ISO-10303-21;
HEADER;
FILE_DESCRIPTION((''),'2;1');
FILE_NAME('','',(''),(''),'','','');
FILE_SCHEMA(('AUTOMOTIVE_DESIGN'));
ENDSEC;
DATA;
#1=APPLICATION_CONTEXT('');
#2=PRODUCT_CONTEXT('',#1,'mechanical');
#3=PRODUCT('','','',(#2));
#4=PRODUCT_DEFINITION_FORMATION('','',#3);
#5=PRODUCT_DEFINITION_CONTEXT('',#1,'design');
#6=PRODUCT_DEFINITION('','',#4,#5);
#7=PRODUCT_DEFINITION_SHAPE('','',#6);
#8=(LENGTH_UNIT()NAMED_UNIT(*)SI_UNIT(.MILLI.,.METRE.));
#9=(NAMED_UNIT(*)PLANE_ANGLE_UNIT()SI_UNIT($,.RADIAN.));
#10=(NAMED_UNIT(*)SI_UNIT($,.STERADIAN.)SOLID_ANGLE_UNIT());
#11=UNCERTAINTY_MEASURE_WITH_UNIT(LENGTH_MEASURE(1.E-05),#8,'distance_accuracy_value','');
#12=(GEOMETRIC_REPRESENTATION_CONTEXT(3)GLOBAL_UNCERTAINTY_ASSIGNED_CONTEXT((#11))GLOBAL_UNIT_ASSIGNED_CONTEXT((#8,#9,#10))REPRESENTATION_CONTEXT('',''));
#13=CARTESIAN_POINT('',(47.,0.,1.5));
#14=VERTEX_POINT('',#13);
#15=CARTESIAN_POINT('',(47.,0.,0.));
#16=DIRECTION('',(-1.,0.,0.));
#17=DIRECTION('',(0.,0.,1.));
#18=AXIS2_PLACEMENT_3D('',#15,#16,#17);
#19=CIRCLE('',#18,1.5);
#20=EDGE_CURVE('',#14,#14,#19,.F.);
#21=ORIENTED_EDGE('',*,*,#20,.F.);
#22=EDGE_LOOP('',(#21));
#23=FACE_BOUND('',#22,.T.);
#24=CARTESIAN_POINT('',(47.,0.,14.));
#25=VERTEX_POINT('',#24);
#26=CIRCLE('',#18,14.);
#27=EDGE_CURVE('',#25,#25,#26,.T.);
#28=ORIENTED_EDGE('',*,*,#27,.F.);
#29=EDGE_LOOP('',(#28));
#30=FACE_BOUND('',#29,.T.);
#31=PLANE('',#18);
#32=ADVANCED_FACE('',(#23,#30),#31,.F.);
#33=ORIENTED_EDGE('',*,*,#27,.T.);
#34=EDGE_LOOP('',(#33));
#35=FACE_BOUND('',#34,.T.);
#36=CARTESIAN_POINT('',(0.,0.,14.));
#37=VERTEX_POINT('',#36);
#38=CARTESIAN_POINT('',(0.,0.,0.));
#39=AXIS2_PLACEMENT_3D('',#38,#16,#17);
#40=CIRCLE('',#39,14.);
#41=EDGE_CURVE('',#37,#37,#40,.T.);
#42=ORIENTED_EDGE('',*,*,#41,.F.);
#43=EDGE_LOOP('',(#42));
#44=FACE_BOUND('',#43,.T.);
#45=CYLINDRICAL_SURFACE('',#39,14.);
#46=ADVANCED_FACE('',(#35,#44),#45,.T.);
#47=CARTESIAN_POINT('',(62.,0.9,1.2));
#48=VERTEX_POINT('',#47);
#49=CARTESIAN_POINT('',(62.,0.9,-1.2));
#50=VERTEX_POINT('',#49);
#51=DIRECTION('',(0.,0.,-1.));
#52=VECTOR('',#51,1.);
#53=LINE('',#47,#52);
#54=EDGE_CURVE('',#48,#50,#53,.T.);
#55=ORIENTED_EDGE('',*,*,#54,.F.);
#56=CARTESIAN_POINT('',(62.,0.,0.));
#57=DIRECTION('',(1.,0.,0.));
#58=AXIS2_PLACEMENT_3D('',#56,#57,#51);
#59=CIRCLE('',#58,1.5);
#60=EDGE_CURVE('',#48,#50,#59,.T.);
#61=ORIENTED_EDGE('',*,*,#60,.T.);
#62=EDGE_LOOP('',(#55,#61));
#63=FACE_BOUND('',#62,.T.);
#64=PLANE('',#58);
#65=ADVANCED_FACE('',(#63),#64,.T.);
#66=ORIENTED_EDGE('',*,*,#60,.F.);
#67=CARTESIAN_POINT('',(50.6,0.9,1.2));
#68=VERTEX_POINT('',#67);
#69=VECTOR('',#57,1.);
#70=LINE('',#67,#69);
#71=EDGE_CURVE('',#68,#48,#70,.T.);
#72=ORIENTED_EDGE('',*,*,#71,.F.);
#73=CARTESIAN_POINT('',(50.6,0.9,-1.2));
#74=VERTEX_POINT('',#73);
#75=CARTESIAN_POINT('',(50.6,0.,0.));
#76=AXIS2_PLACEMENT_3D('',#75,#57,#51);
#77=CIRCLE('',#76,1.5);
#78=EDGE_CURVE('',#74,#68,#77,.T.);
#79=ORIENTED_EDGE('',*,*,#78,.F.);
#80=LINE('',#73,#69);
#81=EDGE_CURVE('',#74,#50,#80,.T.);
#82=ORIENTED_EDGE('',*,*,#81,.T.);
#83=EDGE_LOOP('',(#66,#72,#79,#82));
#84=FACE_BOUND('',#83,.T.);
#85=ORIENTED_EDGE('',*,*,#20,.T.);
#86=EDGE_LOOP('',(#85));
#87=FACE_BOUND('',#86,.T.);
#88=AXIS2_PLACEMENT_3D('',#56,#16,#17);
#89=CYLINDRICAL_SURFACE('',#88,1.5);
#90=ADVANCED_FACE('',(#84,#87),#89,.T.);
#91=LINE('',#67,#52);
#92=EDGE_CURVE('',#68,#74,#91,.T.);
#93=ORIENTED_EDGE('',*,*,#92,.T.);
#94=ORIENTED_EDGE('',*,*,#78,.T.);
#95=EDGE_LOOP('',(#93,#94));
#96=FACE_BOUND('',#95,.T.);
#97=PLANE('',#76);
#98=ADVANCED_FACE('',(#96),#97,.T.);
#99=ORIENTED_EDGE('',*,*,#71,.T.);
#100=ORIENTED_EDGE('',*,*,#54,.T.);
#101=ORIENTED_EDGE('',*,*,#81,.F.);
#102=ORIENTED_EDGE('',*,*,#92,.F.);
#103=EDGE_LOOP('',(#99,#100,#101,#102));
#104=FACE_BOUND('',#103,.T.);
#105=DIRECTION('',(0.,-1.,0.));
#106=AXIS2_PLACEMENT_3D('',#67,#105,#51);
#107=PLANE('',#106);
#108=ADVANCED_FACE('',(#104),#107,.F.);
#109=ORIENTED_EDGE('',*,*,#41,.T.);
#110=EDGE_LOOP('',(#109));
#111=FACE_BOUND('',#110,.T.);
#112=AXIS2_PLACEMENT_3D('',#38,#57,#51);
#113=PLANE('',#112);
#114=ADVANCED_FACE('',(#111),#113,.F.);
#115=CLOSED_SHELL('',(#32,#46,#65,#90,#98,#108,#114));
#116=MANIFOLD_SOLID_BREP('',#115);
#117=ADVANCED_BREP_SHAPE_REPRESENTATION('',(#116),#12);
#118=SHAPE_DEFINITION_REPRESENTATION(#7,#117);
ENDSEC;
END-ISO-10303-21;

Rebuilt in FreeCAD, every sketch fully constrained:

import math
import FreeCAD as App
import Part
import Sketcher
from FreeCAD import Vector

doc = App.newDocument("Part")
body = doc.addObject("PartDesign::Body", "Body")

# Sketch on XY plane
sketch1 = doc.addObject("Sketcher::SketchObject", "Sketch")
body.addObject(sketch1)
sketch1.AttachmentSupport = (doc.XY_Plane, [""])
sketch1.MapMode = "FlatFace"
sketch1.addGeometry([
    Part.LineSegment(Vector(0, 14, 0), Vector(0, 0, 0)),
    Part.LineSegment(Vector(0, 0, 0), Vector(47, 0, 0)),
    Part.LineSegment(Vector(47, 0, 0), Vector(47, 14, 0)),
    Part.LineSegment(Vector(47, 14, 0), Vector(0, 14, 0)),
], False)
sketch1.addConstraint([
    Sketcher.Constraint("Coincident", 0, 2, 1, 1),
    Sketcher.Constraint("Coincident", 1, 2, 2, 1),
    Sketcher.Constraint("Coincident", 2, 2, 3, 1),
    Sketcher.Constraint("Coincident", 3, 2, 0, 1),
    Sketcher.Constraint("Vertical", 0),
    Sketcher.Constraint("Horizontal", 1),
    Sketcher.Constraint("Vertical", 2),
    Sketcher.Constraint("Horizontal", 3),
    Sketcher.Constraint("Coincident", 0, 2, -1, 1),
    Sketcher.Constraint("DistanceX", 1, 1, 1, 2, 47.0),
    Sketcher.Constraint("DistanceY", 0, 2, 0, 1, 14.0),
])
revolution = doc.addObject("PartDesign::Revolution", "Revolution")
body.addObject(revolution)
revolution.Profile = sketch1
revolution.ReferenceAxis = (sketch1, ["H_Axis"])
revolution.Angle = 360

# Sketch on YZ plane
sketch2 = doc.addObject("Sketcher::SketchObject", "Sketch001")
body.addObject(sketch2)
sketch2.AttachmentSupport = (doc.YZ_Plane, [""])
sketch2.MapMode = "FlatFace"
sketch2.AttachmentOffset = App.Placement(Vector(0, 0, 47), App.Rotation())
sketch2.addGeometry(Part.Circle(Vector(0, 0, 0), Vector(0, 0, 1), 1.5), False)
sketch2.addConstraint([
    Sketcher.Constraint("Coincident", 0, 3, -1, 1),
    Sketcher.Constraint("Diameter", 0, 3.0),
])
pad1 = doc.addObject("PartDesign::Pad", "Pad")
body.addObject(pad1)
pad1.Profile = sketch2
pad1.Length = 15

# Sketch on YZ plane
sketch3 = doc.addObject("Sketcher::SketchObject", "Sketch002")
body.addObject(sketch3)
sketch3.AttachmentSupport = (doc.YZ_Plane, [""])
sketch3.MapMode = "FlatFace"
sketch3.AttachmentOffset = App.Placement(Vector(0, 0, 62), App.Rotation())
sketch3.addGeometry([
    Part.LineSegment(Vector(0.9, 1.2, 0), Vector(0.9, -1.2, 0)),
    Part.ArcOfCircle(Part.Circle(Vector(0, 0, 0), Vector(0, 0, 1), 1.5), math.radians(-53), math.radians(53)),
], False)
sketch3.addConstraint([
    Sketcher.Constraint("Coincident", 0, 1, 1, 2),
    Sketcher.Constraint("Coincident", 1, 1, 0, 2),
    Sketcher.Constraint("Vertical", 0),
    Sketcher.Constraint("Coincident", 1, 3, -1, 1),
    Sketcher.Constraint("Radius", 1, 1.5),
    Sketcher.Constraint("DistanceY", 0, 2, 0, 1, 2.4),
])
pocket1 = doc.addObject("PartDesign::Pocket", "Pocket")
body.addObject(pocket1)
pocket1.Profile = sketch3
pocket1.Length = 11.4

doc.recompute()
